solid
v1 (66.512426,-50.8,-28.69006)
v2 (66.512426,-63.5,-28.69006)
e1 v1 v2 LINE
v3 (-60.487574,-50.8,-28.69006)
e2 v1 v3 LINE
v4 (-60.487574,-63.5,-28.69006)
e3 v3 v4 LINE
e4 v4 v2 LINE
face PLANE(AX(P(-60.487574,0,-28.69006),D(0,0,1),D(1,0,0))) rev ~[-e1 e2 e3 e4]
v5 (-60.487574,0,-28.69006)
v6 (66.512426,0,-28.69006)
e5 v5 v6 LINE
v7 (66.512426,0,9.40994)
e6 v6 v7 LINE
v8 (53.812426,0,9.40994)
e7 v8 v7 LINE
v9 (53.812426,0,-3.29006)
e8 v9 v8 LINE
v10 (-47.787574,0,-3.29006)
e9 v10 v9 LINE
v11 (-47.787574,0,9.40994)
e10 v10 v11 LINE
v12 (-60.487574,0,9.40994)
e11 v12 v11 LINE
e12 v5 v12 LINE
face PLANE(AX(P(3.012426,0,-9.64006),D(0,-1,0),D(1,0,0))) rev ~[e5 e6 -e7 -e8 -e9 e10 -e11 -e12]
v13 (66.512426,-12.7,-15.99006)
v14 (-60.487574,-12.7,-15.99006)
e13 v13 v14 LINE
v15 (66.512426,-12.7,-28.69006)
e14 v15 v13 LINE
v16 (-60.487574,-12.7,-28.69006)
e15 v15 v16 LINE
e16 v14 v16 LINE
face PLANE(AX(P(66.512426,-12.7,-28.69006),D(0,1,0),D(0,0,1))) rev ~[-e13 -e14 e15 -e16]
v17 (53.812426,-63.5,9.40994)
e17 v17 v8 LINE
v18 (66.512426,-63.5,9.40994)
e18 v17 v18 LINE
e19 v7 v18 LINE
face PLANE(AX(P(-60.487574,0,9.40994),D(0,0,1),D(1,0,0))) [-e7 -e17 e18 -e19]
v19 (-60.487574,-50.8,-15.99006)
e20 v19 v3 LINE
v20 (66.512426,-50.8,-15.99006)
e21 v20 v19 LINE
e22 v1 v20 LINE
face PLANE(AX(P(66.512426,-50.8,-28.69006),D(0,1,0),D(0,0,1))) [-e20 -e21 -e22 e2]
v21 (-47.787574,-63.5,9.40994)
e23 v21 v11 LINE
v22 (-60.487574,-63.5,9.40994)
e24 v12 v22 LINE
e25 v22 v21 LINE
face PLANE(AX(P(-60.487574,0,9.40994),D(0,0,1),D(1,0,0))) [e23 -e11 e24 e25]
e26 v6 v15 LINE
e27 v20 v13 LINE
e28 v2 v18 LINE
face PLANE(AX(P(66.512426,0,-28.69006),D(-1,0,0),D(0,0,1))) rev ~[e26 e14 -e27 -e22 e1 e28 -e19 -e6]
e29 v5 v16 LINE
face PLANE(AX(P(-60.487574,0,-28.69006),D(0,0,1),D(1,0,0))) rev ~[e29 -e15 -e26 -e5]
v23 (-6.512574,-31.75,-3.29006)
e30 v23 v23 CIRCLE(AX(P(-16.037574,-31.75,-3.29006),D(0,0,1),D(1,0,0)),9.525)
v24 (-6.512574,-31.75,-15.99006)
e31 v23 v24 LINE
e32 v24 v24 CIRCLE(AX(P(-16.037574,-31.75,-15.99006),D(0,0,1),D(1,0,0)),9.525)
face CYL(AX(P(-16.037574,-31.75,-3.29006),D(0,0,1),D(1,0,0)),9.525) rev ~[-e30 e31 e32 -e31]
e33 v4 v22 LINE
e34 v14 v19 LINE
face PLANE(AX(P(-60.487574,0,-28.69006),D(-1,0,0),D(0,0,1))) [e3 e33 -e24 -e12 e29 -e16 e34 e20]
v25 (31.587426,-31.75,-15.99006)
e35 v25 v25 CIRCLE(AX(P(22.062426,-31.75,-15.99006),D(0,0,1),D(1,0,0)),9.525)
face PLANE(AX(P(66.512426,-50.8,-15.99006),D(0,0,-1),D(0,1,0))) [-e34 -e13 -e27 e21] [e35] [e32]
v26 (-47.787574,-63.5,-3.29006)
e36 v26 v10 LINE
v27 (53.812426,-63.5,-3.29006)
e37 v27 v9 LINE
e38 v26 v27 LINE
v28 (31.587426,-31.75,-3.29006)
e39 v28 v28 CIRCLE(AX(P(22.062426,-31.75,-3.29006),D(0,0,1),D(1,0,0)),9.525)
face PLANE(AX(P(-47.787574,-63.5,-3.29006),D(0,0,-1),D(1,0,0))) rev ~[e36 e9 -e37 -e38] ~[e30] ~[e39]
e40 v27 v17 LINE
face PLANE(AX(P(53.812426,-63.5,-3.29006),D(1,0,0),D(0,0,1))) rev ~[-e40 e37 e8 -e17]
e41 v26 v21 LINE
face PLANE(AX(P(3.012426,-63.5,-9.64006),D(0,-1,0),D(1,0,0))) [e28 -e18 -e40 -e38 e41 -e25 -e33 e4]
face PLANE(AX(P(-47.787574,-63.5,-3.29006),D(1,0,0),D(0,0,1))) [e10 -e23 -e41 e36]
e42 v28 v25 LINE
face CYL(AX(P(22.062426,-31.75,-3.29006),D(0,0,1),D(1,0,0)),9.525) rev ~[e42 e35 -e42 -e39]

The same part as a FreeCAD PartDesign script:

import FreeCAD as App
import Part
import Sketcher
Q = App.Units.Quantity

doc = App.newDocument("Part")
body = doc.addObject("PartDesign::Body", "Body")

# Sketch on XZ plane
sketch1 = body.newObject("Sketcher::SketchObject", "Sketch")
sketch1.AttachmentSupport = (doc.getObject("XZ_Plane"), [""])
sketch1.MapMode = "FlatFace"
sketch1.addGeometry([
    Part.LineSegment(App.Vector(-60.487574, 9.40994, 0), App.Vector(-60.487574, -28.69006, 0)),
    Part.LineSegment(App.Vector(-60.487574, -28.69006, 0), App.Vector(66.512426, -28.69006, 0)),
    Part.LineSegment(App.Vector(66.512426, -28.69006, 0), App.Vector(66.512426, 9.40994, 0)),
    Part.LineSegment(App.Vector(66.512426, 9.40994, 0), App.Vector(-60.487574, 9.40994, 0)),
], False)
sketch1.addConstraint([
    Sketcher.Constraint("Coincident", 0, 2, 1, 1),
    Sketcher.Constraint("Coincident", 1, 2, 2, 1),
    Sketcher.Constraint("Coincident", 2, 2, 3, 1),
    Sketcher.Constraint("Coincident", 3, 2, 0, 1),
    Sketcher.Constraint("Vertical", 0),
    Sketcher.Constraint("Horizontal", 1),
    Sketcher.Constraint("Vertical", 2),
    Sketcher.Constraint("Horizontal", 3),
    Sketcher.Constraint("DistanceX", 1, 1, 1, 2, Q("5 in")),
    Sketcher.Constraint("DistanceY", 0, 2, 0, 1, Q("1.5 in")),
    Sketcher.Constraint("DistanceY", 0, 2, -1, 1, Q("28.69006 mm")),
    Sketcher.Constraint("DistanceX", 0, 2, -1, 1, Q("60.487574 mm")),
])
pad1 = body.newObject("PartDesign::Pad", "Pad")
pad1.Profile = sketch1
pad1.Length = Q("2.5 in")

# Sketch on XZ plane
sketch2 = body.newObject("Sketcher::SketchObject", "Sketch001")
sketch2.AttachmentSupport = (doc.getObject("XZ_Plane"), [""])
sketch2.MapMode = "FlatFace"
sketch2.AttachmentOffset = App.Placement(App.Vector(0, 0, 2.5 * 25.4), App.Rotation())
sketch2.addGeometry([
    Part.LineSegment(App.Vector(-47.787574, 9.40994, 0), App.Vector(-47.787574, -3.29006, 0)),
    Part.LineSegment(App.Vector(-47.787574, -3.29006, 0), App.Vector(53.812426, -3.29006, 0)),
    Part.LineSegment(App.Vector(53.812426, -3.29006, 0), App.Vector(53.812426, 9.40994, 0)),
    Part.LineSegment(App.Vector(53.812426, 9.40994, 0), App.Vector(-47.787574, 9.40994, 0)),
], False)
sketch2.addConstraint([
    Sketcher.Constraint("Coincident", 0, 2, 1, 1),
    Sketcher.Constraint("Coincident", 1, 2, 2, 1),
    Sketcher.Constraint("Coincident", 2, 2, 3, 1),
    Sketcher.Constraint("Coincident", 3, 2, 0, 1),
    Sketcher.Constraint("Vertical", 0),
    Sketcher.Constraint("Horizontal", 1),
    Sketcher.Constraint("Vertical", 2),
    Sketcher.Constraint("Horizontal", 3),
    Sketcher.Constraint("DistanceX", 1, 1, 1, 2, Q("4 in")),
    Sketcher.Constraint("DistanceY", 0, 2, 0, 1, Q("0.5 in")),
    Sketcher.Constraint("DistanceY", 0, 2, -1, 1, Q("3.29006 mm")),
    Sketcher.Constraint("DistanceX", 0, 2, -1, 1, Q("47.787574 mm")),
])
pocket1 = body.newObject("PartDesign::Pocket", "Pocket")
pocket1.Profile = sketch2
pocket1.Type = "ThroughAll"

# Sketch on YZ plane
sketch3 = body.newObject("Sketcher::SketchObject", "Sketch002")
sketch3.AttachmentSupport = (doc.getObject("YZ_Plane"), [""])
sketch3.MapMode = "FlatFace"
sketch3.AttachmentOffset = App.Placement(App.Vector(0, 0, 66.512426), App.Rotation())
sketch3.addGeometry([
    Part.LineSegment(App.Vector(-50.8, -15.99006, 0), App.Vector(-50.8, -28.69006, 0)),
    Part.LineSegment(App.Vector(-50.8, -28.69006, 0), App.Vector(-12.7, -28.69006, 0)),
    Part.LineSegment(App.Vector(-12.7, -28.69006, 0), App.Vector(-12.7, -15.99006, 0)),
    Part.LineSegment(App.Vector(-12.7, -15.99006, 0), App.Vector(-50.8, -15.99006, 0)),
], False)
sketch3.addConstraint([
    Sketcher.Constraint("Coincident", 0, 2, 1, 1),
    Sketcher.Constraint("Coincident", 1, 2, 2, 1),
    Sketcher.Constraint("Coincident", 2, 2, 3, 1),
    Sketcher.Constraint("Coincident", 3, 2, 0, 1),
    Sketcher.Constraint("Vertical", 0),
    Sketcher.Constraint("Horizontal", 1),
    Sketcher.Constraint("Vertical", 2),
    Sketcher.Constraint("Horizontal", 3),
    Sketcher.Constraint("DistanceX", 1, 1, 1, 2, Q("1.5 in")),
    Sketcher.Constraint("DistanceY", 0, 2, 0, 1, Q("0.5 in")),
    Sketcher.Constraint("DistanceX", 0, 2, -1, 1, Q("2 in")),
    Sketcher.Constraint("DistanceY", 0, 2, -1, 1, Q("28.69006 mm")),
])
pocket2 = body.newObject("PartDesign::Pocket", "Pocket001")
pocket2.Profile = sketch3
pocket2.Type = "ThroughAll"

# Sketch on XY plane
sketch4 = body.newObject("Sketcher::SketchObject", "Sketch003")
sketch4.AttachmentSupport = (doc.getObject("XY_Plane"), [""])
sketch4.MapMode = "FlatFace"
sketch4.AttachmentOffset = App.Placement(App.Vector(0, 0, -3.29006), App.Rotation())
sketch4.addGeometry([
    Part.Circle(App.Vector(-16.037574, -31.75, 0), App.Vector(0, 0, 1), 9.525),
    Part.Circle(App.Vector(22.062426, -31.75, 0), App.Vector(0, 0, 1), 9.525),
], False)
sketch4.addConstraint([
    Sketcher.Constraint("Equal", 0, 1),
    Sketcher.Constraint("Horizontal", 0, 3, 1, 3),
    Sketcher.Constraint("Diameter", 0, Q("0.75 in")),
    Sketcher.Constraint("DistanceX", 0, 3, 1, 3, Q("1.5 in")),
    Sketcher.Constraint("DistanceY", 0, 3, -1, 1, Q("1.25 in")),
    Sketcher.Constraint("DistanceX", 0, 3, -1, 1, Q("16.037574 mm")),
])
pocket3 = body.newObject("PartDesign::Pocket", "Pocket002")
pocket3.Profile = sketch4
pocket3.Type = "ThroughAll"

doc.recompute()
